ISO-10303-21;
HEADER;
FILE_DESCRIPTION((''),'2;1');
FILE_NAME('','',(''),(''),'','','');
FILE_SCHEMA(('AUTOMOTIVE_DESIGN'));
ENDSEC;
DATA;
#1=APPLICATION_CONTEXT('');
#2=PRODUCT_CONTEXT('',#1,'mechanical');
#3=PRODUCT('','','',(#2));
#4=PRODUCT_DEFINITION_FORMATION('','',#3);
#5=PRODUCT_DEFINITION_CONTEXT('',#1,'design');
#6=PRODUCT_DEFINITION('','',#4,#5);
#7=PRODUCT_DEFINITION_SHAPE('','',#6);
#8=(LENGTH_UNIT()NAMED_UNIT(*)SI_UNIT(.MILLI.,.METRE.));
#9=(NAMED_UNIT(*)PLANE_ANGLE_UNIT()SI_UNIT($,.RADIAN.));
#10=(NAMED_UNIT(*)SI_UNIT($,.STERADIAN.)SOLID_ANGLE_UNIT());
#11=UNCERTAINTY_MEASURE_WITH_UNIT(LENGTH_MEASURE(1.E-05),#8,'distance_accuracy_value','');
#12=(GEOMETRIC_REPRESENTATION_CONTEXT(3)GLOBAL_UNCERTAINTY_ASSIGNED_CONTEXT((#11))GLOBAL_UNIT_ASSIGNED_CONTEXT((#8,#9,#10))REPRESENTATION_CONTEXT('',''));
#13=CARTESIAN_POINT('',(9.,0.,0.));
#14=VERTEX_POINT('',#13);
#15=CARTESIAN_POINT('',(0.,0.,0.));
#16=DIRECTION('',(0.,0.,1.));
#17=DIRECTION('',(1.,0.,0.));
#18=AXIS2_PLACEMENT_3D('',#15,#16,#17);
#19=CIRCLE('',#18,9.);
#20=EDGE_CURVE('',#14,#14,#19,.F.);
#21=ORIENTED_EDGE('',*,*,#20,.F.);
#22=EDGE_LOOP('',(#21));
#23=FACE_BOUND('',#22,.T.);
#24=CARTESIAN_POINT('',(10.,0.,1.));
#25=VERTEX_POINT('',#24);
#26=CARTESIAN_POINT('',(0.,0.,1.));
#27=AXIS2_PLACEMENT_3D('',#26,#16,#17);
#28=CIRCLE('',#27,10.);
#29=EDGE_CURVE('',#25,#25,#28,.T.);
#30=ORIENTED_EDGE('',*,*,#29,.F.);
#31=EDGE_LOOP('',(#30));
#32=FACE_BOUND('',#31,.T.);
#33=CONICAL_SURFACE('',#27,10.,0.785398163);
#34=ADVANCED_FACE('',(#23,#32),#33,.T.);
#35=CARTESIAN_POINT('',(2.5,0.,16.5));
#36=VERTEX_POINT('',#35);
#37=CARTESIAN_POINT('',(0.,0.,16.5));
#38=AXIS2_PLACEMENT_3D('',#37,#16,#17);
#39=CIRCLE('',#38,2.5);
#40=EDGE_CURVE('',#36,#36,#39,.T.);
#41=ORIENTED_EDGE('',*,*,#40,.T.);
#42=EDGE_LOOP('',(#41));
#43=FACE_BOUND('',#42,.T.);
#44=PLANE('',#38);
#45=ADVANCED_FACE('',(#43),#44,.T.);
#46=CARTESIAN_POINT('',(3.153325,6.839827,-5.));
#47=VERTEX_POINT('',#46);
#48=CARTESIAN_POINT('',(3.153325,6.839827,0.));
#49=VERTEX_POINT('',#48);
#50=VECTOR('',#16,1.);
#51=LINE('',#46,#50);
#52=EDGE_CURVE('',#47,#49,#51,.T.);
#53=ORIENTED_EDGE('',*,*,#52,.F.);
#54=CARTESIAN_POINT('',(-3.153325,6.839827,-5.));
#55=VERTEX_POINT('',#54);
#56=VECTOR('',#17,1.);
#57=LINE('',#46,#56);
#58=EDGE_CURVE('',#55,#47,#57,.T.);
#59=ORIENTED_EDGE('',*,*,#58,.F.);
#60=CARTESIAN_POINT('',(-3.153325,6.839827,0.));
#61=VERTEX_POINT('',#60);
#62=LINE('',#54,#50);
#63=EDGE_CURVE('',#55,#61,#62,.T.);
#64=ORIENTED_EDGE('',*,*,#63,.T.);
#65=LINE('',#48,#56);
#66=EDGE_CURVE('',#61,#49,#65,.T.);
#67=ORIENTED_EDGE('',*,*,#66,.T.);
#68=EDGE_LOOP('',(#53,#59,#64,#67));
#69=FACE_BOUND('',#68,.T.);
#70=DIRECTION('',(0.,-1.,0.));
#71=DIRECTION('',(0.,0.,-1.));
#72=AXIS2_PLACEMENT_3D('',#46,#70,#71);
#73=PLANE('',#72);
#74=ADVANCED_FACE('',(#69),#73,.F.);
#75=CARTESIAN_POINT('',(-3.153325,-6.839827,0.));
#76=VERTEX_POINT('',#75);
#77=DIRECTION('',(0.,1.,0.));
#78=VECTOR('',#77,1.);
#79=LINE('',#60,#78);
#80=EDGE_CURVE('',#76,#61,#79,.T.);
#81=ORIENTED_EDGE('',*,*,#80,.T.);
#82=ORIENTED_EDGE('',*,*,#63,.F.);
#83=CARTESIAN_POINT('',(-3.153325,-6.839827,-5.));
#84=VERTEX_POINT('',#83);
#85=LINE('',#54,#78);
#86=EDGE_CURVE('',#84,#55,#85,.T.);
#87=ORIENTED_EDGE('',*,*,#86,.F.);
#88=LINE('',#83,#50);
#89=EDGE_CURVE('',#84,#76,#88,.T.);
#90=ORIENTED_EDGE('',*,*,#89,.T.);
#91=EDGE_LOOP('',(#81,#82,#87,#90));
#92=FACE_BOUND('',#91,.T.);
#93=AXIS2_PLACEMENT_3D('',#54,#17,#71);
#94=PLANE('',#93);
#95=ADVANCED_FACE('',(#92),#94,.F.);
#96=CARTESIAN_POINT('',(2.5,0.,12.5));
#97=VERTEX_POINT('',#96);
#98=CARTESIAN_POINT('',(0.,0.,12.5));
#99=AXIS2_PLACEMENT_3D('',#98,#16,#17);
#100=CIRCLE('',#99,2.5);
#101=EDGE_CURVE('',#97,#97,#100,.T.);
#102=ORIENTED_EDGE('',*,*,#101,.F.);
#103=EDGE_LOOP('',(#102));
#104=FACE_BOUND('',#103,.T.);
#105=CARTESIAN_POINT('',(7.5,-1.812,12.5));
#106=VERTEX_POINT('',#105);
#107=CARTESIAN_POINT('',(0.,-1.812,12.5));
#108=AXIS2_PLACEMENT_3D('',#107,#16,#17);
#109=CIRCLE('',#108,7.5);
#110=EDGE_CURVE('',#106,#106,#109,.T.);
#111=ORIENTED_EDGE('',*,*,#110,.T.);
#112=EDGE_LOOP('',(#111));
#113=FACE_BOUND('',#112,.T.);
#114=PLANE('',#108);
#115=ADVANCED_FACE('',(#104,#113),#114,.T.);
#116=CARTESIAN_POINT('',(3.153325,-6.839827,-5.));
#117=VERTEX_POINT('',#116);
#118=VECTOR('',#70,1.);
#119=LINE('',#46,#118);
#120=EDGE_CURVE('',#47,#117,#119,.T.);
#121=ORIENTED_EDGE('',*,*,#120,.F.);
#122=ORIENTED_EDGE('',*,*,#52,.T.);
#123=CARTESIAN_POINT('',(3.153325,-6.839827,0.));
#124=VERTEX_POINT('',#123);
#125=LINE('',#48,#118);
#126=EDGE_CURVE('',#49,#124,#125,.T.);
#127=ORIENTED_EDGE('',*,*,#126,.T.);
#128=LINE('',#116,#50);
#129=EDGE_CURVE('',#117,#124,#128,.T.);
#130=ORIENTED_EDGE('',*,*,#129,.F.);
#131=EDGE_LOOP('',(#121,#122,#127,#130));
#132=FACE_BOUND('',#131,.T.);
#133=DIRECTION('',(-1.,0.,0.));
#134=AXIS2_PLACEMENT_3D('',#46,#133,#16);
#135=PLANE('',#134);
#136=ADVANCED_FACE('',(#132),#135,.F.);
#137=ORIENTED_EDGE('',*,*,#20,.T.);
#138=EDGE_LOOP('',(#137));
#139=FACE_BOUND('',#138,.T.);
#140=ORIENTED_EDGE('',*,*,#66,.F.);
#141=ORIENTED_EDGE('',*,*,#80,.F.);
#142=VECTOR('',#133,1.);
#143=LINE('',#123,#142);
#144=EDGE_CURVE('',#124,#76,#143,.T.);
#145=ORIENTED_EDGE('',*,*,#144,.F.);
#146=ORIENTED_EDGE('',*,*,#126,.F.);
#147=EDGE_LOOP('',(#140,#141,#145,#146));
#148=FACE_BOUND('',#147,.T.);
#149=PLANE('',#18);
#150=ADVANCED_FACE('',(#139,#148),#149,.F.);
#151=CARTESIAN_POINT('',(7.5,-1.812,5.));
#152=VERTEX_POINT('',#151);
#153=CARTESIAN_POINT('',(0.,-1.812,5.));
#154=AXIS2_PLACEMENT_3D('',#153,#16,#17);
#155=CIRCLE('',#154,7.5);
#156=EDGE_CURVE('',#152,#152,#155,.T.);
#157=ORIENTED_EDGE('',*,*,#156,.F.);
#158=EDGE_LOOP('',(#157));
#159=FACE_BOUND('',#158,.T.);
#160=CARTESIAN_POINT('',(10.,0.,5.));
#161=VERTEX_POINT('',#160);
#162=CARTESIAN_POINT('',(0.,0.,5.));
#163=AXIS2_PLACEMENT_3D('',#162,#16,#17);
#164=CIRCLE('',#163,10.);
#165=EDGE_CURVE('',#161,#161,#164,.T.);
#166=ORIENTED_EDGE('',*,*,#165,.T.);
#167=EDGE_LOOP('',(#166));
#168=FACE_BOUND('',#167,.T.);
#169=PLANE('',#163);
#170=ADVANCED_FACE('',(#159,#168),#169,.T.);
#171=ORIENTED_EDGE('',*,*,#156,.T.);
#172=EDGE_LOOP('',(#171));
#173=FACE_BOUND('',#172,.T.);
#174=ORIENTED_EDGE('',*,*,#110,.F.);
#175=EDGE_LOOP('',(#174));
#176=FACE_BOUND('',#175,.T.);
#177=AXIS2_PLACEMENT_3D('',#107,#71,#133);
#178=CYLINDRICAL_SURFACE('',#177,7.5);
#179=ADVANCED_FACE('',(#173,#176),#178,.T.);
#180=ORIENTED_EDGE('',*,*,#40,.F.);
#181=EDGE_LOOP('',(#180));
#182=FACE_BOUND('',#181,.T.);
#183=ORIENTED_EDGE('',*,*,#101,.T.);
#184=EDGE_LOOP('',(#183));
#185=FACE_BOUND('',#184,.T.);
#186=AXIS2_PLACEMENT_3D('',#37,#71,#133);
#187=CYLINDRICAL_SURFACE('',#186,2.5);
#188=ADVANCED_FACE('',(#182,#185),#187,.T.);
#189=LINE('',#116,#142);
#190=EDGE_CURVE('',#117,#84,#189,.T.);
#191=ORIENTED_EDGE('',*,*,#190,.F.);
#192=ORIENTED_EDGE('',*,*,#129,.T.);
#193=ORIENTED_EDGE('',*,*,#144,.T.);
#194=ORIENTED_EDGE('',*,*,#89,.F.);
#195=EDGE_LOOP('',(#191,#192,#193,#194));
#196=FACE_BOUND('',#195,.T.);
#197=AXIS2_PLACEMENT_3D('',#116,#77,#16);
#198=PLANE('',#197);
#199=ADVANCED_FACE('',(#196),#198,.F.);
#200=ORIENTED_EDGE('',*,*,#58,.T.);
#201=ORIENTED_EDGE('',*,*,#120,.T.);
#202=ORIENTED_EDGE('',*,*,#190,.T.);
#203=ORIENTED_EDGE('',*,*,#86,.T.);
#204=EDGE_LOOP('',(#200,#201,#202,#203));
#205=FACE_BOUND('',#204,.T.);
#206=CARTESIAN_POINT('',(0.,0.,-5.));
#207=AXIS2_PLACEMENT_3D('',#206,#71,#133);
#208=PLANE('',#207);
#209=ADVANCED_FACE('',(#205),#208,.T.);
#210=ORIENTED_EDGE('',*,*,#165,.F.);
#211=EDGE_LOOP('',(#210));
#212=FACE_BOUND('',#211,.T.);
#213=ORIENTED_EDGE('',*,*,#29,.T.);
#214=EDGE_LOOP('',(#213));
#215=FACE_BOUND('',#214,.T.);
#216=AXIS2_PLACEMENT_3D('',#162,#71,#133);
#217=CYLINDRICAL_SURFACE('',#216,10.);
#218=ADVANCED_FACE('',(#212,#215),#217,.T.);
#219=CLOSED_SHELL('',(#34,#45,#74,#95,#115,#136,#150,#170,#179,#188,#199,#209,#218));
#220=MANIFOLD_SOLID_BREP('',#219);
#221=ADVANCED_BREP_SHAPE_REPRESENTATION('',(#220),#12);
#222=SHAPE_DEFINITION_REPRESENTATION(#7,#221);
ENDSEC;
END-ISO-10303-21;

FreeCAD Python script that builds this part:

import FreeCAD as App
import Part
import Sketcher


def edges_at(feature, points):
    """Names of the edges that pass closest to the given points."""
    edges = feature.Shape.Edges
    near = lambda p: min(range(len(edges)), key=lambda i: edges[i].distToShape(Part.Vertex(*p))[0])
    return sorted({f"Edge{near(p) + 1}" for p in points})


def add_polygon(sketch, points):
    """Adds a closed chain of lines whose ends are joined by coincident constraints."""
    first, n = sketch.GeometryCount, len(points)
    for a, b in zip(points, points[1:] + points[:1]):
        sketch.addGeometry(Part.LineSegment(App.Vector(*a, 0), App.Vector(*b, 0)), False)
    for i in range(n):
        sketch.addConstraint(Sketcher.Constraint("Coincident", first + i, 2, first + (i + 1) % n, 1))

doc = App.newDocument("Part")
body = doc.addObject("PartDesign::Body", "Body")

sketch1 = body.newObject("Sketcher::SketchObject", "Sketch")
sketch1.AttachmentSupport = (doc.getObject("XY_Plane"), [""])
sketch1.MapMode = "FlatFace"
sketch1.addGeometry(Part.Circle(App.Vector(0, 0, 0), App.Vector(0, 0, 1), 10), False)
sketch1.addConstraint([
    Sketcher.Constraint("Coincident", 0, 3, -1, 1),
    Sketcher.Constraint("Diameter", 0, 20.0),
])
pad1 = body.newObject("PartDesign::Pad", "Pad")
pad1.Profile = sketch1
pad1.Length = 5

sketch2 = body.newObject("Sketcher::SketchObject", "Sketch001")
sketch2.AttachmentSupport = (doc.getObject("XY_Plane"), [""])
sketch2.MapMode = "FlatFace"
sketch2.AttachmentOffset = App.Placement(App.Vector(0, 0, 5), App.Rotation())
sketch2.addGeometry(Part.Circle(App.Vector(0, -2, 0), App.Vector(0, 0, 1), 8), False)
sketch2.addConstraint([
    Sketcher.Constraint("PointOnObject", 0, 3, -2),
    Sketcher.Constraint("Diameter", 0, 15.0),
    Sketcher.Constraint("DistanceY", 0, 3, -1, 1, 1.812),
])
pad2 = body.newObject("PartDesign::Pad", "Pad001")
pad2.Profile = sketch2
pad2.Length = 7.5

sketch3 = body.newObject("Sketcher::SketchObject", "Sketch002")
sketch3.AttachmentSupport = (doc.getObject("XY_Plane"), [""])
sketch3.MapMode = "FlatFace"
sketch3.AttachmentOffset = App.Placement(App.Vector(0, 0, 12.5), App.Rotation())
sketch3.addGeometry(Part.Circle(App.Vector(0, 0, 0), App.Vector(0, 0, 1), 2.5), False)
sketch3.addConstraint([
    Sketcher.Constraint("Coincident", 0, 3, -1, 1),
    Sketcher.Constraint("Diameter", 0, 5.0),
])
pad3 = body.newObject("PartDesign::Pad", "Pad002")
pad3.Profile = sketch3
pad3.Length = 4

sketch4 = body.newObject("Sketcher::SketchObject", "Sketch003")
sketch4.AttachmentSupport = (doc.getObject("XY_Plane"), [""])
sketch4.MapMode = "FlatFace"
add_polygon(sketch4, [(3, 7), (3, -7), (-3, -7), (-3, 7)])
sketch4.addConstraint([
    Sketcher.Constraint("Vertical", 0),
    Sketcher.Constraint("Horizontal", 1),
    Sketcher.Constraint("Vertical", 2),
    Sketcher.Constraint("Horizontal", 3),
    Sketcher.Constraint("Symmetric", 0, 2, 2, 2, -1, 1),
    Sketcher.Constraint("DistanceX", 1, 2, 1, 1, 6.30665),
    Sketcher.Constraint("DistanceY", 0, 2, 0, 1, 13.679653),
])
pad4 = body.newObject("PartDesign::Pad", "Pad003")
pad4.Profile = sketch4
pad4.Length = 5
pad4.Reversed = True
doc.recompute()

chamfer = body.newObject("PartDesign::Chamfer", "Chamfer")
chamfer.Base = (pad4, edges_at(pad4, [(-10, 0, 0)]))
chamfer.Size = 1

doc.recompute()
